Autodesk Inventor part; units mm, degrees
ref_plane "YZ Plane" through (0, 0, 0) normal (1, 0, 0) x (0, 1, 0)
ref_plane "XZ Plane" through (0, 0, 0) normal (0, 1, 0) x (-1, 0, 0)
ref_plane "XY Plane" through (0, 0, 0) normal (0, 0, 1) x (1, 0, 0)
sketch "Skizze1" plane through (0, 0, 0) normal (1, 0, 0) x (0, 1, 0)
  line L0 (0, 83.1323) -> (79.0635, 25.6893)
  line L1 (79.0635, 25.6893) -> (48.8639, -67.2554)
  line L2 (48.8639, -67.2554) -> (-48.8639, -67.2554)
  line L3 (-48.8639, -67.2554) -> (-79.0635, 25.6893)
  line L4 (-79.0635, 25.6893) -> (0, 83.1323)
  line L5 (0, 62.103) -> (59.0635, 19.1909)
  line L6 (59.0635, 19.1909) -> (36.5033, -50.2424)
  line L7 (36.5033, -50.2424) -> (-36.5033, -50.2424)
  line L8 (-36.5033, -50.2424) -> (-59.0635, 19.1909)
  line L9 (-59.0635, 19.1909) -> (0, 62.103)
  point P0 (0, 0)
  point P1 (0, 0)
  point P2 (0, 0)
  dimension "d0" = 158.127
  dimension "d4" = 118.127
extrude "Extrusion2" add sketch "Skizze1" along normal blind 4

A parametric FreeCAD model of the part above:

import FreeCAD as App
import Part
import Sketcher
from FreeCAD import Vector
Q = App.Units.Quantity

doc = App.newDocument("Part")
body = doc.addObject("PartDesign::Body", "Body")

sketch1 = body.newObject("Sketcher::SketchObject", "Sketch")
sketch1.AttachmentSupport = (doc.getObject("YZ_Plane"), [""])
sketch1.MapMode = "FlatFace"
sketch1.addGeometry([
    Part.LineSegment(Vector(79, 26, 0), Vector(0, 83, 0)),
    Part.LineSegment(Vector(0, 83, 0), Vector(-79, 26, 0)),
    Part.LineSegment(Vector(-79, 26, 0), Vector(-49, -67, 0)),
    Part.LineSegment(Vector(-49, -67, 0), Vector(49, -67, 0)),
    Part.LineSegment(Vector(49, -67, 0), Vector(79, 26, 0)),
    Part.LineSegment(Vector(-59, 19, 0), Vector(0, 62, 0)),
    Part.LineSegment(Vector(0, 62, 0), Vector(59, 19, 0)),
    Part.LineSegment(Vector(59, 19, 0), Vector(37, -50, 0)),
    Part.LineSegment(Vector(37, -50, 0), Vector(-37, -50, 0)),
    Part.LineSegment(Vector(-37, -50, 0), Vector(-59, 19, 0)),
], False)
sketch1.addConstraint([
    Sketcher.Constraint("Coincident", 0, 2, 1, 1),
    Sketcher.Constraint("Coincident", 1, 2, 2, 1),
    Sketcher.Constraint("Coincident", 2, 2, 3, 1),
    Sketcher.Constraint("Coincident", 3, 2, 4, 1),
    Sketcher.Constraint("Coincident", 4, 2, 0, 1),
    Sketcher.Constraint("Coincident", 5, 2, 6, 1),
    Sketcher.Constraint("Coincident", 6, 2, 7, 1),
    Sketcher.Constraint("Coincident", 7, 2, 8, 1),
    Sketcher.Constraint("Coincident", 8, 2, 9, 1),
    Sketcher.Constraint("Coincident", 9, 2, 5, 1),
    Sketcher.Constraint("Horizontal", 3),
    Sketcher.Constraint("Horizontal", 8),
    Sketcher.Constraint("Symmetric", 1, 2, 4, 2, -2),
    Sketcher.Constraint("Symmetric", 6, 2, 9, 2, -2),
    Sketcher.Constraint("PointOnObject", 0, 2, -2),
    Sketcher.Constraint("PointOnObject", 5, 2, -2),
    Sketcher.Constraint("Parallel", 1, 5),
    Sketcher.Constraint("Parallel", 4, 7),
    Sketcher.Constraint("Parallel", 2, 9),
    Sketcher.Constraint("Equal", 1, 2),
    Sketcher.Constraint("Equal", 2, 4),
    Sketcher.Constraint("Equal", 6, 7),
    Sketcher.Constraint("Angle", 0, Q("144 deg")),
    Sketcher.Constraint("Angle", 2, Q("-72 deg")),
    Sketcher.Constraint("DistanceX", 1, 2, 4, 2, 158.127),
    Sketcher.Constraint("DistanceX", 6, 2, 4, 2, 20.0),
    Sketcher.Constraint("DistanceY", -1, 1, 5, 2, 62.103),
    Sketcher.Constraint("DistanceY", 3, 2, 7, 2, 17.013),
])
pad1 = body.newObject("PartDesign::Pad", "Pad")
pad1.Profile = sketch1
pad1.Length = 4

doc.recompute()
